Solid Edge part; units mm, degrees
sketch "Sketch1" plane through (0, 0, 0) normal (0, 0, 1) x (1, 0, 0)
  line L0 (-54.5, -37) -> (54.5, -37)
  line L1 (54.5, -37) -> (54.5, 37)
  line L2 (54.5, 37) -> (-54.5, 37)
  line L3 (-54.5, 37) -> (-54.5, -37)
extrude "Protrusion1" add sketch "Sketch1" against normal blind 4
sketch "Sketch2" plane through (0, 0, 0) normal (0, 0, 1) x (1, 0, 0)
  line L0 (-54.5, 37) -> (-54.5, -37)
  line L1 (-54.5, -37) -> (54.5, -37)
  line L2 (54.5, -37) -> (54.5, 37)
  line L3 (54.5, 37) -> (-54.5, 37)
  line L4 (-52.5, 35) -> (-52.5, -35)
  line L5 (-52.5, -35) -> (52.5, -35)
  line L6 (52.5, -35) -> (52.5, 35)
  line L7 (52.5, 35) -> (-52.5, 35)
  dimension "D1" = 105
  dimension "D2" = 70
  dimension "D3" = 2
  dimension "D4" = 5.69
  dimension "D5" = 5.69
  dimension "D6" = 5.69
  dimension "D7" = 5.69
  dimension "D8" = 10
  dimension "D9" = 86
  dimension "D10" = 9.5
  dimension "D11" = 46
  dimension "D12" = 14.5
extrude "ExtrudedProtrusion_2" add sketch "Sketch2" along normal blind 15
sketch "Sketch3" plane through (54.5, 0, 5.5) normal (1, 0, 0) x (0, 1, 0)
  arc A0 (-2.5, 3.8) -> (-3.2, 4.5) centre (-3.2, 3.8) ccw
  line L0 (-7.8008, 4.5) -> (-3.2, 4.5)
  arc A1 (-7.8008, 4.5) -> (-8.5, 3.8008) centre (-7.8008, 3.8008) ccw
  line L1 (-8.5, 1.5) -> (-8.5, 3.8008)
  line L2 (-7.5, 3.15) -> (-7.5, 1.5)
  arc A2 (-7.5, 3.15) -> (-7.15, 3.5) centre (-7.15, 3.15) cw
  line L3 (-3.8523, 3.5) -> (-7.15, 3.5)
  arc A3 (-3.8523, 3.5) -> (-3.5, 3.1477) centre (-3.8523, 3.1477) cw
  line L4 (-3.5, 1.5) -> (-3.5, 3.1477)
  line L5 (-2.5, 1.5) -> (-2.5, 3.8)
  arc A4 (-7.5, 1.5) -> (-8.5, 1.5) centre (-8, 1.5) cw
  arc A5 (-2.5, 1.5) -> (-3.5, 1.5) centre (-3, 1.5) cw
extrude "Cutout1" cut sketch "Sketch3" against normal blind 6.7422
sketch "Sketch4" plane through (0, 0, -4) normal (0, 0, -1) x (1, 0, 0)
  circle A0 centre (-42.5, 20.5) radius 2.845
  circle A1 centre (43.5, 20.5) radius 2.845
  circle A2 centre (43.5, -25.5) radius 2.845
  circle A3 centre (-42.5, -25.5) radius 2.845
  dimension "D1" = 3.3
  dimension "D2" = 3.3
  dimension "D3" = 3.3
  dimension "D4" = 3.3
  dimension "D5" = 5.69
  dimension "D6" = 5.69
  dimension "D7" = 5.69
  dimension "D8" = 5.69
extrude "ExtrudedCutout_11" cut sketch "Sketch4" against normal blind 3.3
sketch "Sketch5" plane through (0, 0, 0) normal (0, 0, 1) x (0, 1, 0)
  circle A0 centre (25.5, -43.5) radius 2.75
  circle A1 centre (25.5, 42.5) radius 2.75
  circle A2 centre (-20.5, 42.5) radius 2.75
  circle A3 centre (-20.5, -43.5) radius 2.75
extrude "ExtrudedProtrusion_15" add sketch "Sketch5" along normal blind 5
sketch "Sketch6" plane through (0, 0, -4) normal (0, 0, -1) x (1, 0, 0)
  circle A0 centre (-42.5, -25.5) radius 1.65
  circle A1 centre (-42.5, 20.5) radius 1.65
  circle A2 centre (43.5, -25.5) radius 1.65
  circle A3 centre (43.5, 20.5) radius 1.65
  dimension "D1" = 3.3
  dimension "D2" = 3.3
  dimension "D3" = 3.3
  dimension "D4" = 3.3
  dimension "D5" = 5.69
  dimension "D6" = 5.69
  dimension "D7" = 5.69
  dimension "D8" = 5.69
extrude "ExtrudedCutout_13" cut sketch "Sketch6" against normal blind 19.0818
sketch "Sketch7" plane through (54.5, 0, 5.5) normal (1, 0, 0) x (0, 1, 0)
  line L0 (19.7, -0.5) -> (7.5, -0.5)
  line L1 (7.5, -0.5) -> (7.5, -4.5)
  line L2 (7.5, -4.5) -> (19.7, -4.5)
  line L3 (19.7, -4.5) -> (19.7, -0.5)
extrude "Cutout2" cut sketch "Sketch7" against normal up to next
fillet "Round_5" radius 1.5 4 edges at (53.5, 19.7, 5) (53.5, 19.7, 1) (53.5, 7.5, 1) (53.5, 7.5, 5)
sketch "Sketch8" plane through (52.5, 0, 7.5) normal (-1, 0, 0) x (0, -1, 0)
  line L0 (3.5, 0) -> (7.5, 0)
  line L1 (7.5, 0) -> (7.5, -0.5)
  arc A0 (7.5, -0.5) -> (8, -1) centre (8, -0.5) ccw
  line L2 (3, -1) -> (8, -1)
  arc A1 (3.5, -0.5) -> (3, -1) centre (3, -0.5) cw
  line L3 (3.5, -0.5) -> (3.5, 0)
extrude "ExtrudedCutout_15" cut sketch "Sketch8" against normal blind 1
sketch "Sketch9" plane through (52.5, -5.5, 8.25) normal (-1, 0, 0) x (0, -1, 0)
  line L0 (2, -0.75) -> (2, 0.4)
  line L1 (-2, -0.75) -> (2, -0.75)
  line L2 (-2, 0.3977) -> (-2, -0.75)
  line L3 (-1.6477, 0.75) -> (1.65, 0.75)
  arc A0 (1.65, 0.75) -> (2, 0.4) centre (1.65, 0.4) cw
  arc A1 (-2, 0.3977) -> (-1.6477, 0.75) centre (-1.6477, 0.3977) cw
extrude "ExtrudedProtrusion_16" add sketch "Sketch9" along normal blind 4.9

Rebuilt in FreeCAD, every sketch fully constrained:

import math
import FreeCAD as App
import Part
import Sketcher
from FreeCAD import Vector


def edges_at(feature, points):
    """Names of the edges that pass closest to the given points."""
    edges = feature.Shape.Edges
    near = lambda p: min(range(len(edges)), key=lambda i: edges[i].distToShape(Part.Vertex(*p))[0])
    return sorted({f"Edge{near(p) + 1}" for p in points})

doc = App.newDocument("Part")
body = doc.addObject("PartDesign::Body", "Body")

# Sketch on XY plane
sketch1 = body.newObject("Sketcher::SketchObject", "Sketch")
sketch1.AttachmentSupport = (doc.getObject("XY_Plane"), [""])
sketch1.MapMode = "FlatFace"
sketch1.addGeometry([
    Part.LineSegment(Vector(-54.5, 37, 0), Vector(-54.5, -37, 0)),
    Part.LineSegment(Vector(-54.5, -37, 0), Vector(54.5, -37, 0)),
    Part.LineSegment(Vector(54.5, -37, 0), Vector(54.5, 37, 0)),
    Part.LineSegment(Vector(54.5, 37, 0), Vector(-54.5, 37, 0)),
], False)
sketch1.addConstraint([
    Sketcher.Constraint("Coincident", 0, 2, 1, 1),
    Sketcher.Constraint("Coincident", 1, 2, 2, 1),
    Sketcher.Constraint("Coincident", 2, 2, 3, 1),
    Sketcher.Constraint("Coincident", 3, 2, 0, 1),
    Sketcher.Constraint("Vertical", 0),
    Sketcher.Constraint("Horizontal", 1),
    Sketcher.Constraint("Vertical", 2),
    Sketcher.Constraint("Horizontal", 3),
    Sketcher.Constraint("Symmetric", 0, 2, 2, 2, -1, 1),
    Sketcher.Constraint("DistanceX", 1, 1, 1, 2, 109.0),
    Sketcher.Constraint("DistanceY", 0, 2, 0, 1, 74.0),
])
pad1 = body.newObject("PartDesign::Pad", "Pad")
pad1.Profile = sketch1
pad1.Length = 4
pad1.Reversed = True

# Sketch on XY plane
sketch2 = body.newObject("Sketcher::SketchObject", "Sketch001")
sketch2.AttachmentSupport = (doc.getObject("XY_Plane"), [""])
sketch2.MapMode = "FlatFace"
sketch2.addGeometry([
    Part.LineSegment(Vector(54.5, 37, 0), Vector(-54.5, 37, 0)),  # 0
    Part.LineSegment(Vector(-54.5, 37, 0), Vector(-54.5, -37, 0)),  # 1
    Part.LineSegment(Vector(-54.5, -37, 0), Vector(54.5, -37, 0)),  # 2
    Part.LineSegment(Vector(54.5, -37, 0), Vector(54.5, 37, 0)),  # 3
    Part.LineSegment(Vector(-52.5, -35, 0), Vector(-52.5, 35, 0)),  # 4
    Part.LineSegment(Vector(-52.5, 35, 0), Vector(52.5, 35, 0)),  # 5
    Part.LineSegment(Vector(52.5, 35, 0), Vector(52.5, -35, 0)),  # 6
    Part.LineSegment(Vector(52.5, -35, 0), Vector(-52.5, -35, 0)),  # 7
], False)
sketch2.addConstraint([
    Sketcher.Constraint("Coincident", 0, 2, 1, 1),
    Sketcher.Constraint("Coincident", 1, 2, 2, 1),
    Sketcher.Constraint("Coincident", 2, 2, 3, 1),
    Sketcher.Constraint("Coincident", 3, 2, 0, 1),
    Sketcher.Constraint("Coincident", 4, 2, 5, 1),
    Sketcher.Constraint("Coincident", 5, 2, 6, 1),
    Sketcher.Constraint("Coincident", 6, 2, 7, 1),
    Sketcher.Constraint("Coincident", 7, 2, 4, 1),
    Sketcher.Constraint("Horizontal", 0),
    Sketcher.Constraint("Vertical", 1),
    Sketcher.Constraint("Horizontal", 2),
    Sketcher.Constraint("Vertical", 3),
    Sketcher.Constraint("Vertical", 4),
    Sketcher.Constraint("Horizontal", 5),
    Sketcher.Constraint("Vertical", 6),
    Sketcher.Constraint("Horizontal", 7),
    Sketcher.Constraint("Symmetric", 0, 2, 2, 2, -1, 1),
    Sketcher.Constraint("Symmetric", 4, 2, 6, 2, -1, 1),
    Sketcher.Constraint("DistanceX", 0, 2, 0, 1, 109.0),
    Sketcher.Constraint("DistanceX", 5, 1, 5, 2, 105.0),
    Sketcher.Constraint("DistanceY", 1, 2, 1, 1, 74.0),
    Sketcher.Constraint("DistanceY", 4, 1, 4, 2, 70.0),
])
pad2 = body.newObject("PartDesign::Pad", "Pad001")
pad2.Profile = sketch2
pad2.Length = 15

# Sketch on YZ plane
sketch3 = body.newObject("Sketcher::SketchObject", "Sketch002")
sketch3.AttachmentSupport = (doc.getObject("YZ_Plane"), [""])
sketch3.MapMode = "FlatFace"
sketch3.AttachmentOffset = App.Placement(Vector(0, 0, 54.5), App.Rotation())
sketch3.addGeometry([
    Part.LineSegment(Vector(-2.5, 7, 0), Vector(-2.5, 9.3, 0)),  # 0
    Part.ArcOfCircle(Part.Circle(Vector(-3.2, 9.3, 0), Vector(0, 0, 1), 0.7), math.radians(0), math.radians(90)),  # 1
    Part.LineSegment(Vector(-3.2, 10, 0), Vector(-7.8008, 10, 0)),  # 2
    Part.ArcOfCircle(Part.Circle(Vector(-7.8008, 9.3008, 0), Vector(0, 0, 1), 0.6992), math.radians(90), math.radians(180)),  # 3
    Part.LineSegment(Vector(-8.5, 9.3008, 0), Vector(-8.5, 7, 0)),  # 4
    Part.ArcOfCircle(Part.Circle(Vector(-8, 7, 0), Vector(0, 0, 1), 0.5), math.radians(180), math.radians(360)),  # 5
    Part.LineSegment(Vector(-7.5, 7, 0), Vector(-7.5, 8.65, 0)),  # 6
    Part.ArcOfCircle(Part.Circle(Vector(-7.15, 8.65, 0), Vector(0, 0, 1), 0.35), math.radians(90), math.radians(180)),  # 7
    Part.LineSegment(Vector(-7.15, 9, 0), Vector(-3.8523, 9, 0)),  # 8
    Part.ArcOfCircle(Part.Circle(Vector(-3.8523, 8.6477, 0), Vector(0, 0, 1), 0.3523), math.radians(0), math.radians(90)),  # 9
    Part.LineSegment(Vector(-3.5, 8.6477, 0), Vector(-3.5, 7, 0)),  # 10
    Part.ArcOfCircle(Part.Circle(Vector(-3, 7, 0), Vector(0, 0, 1), 0.5), math.radians(180), math.radians(360)),  # 11
], False)
sketch3.addConstraint([
    Sketcher.Constraint("Tangent", 0, 2, 1, 1),
    Sketcher.Constraint("Tangent", 1, 2, 2, 1),
    Sketcher.Constraint("Tangent", 2, 2, 3, 1),
    Sketcher.Constraint("Tangent", 3, 2, 4, 1),
    Sketcher.Constraint("Tangent", 4, 2, 5, 1),
    Sketcher.Constraint("Tangent", 5, 2, 6, 1),
    Sketcher.Constraint("Tangent", 6, 2, 7, 2),
    Sketcher.Constraint("Tangent", 7, 1, 8, 1),
    Sketcher.Constraint("Tangent", 8, 2, 9, 2),
    Sketcher.Constraint("Tangent", 9, 1, 10, 1),
    Sketcher.Constraint("Tangent", 10, 2, 11, 1),
    Sketcher.Constraint("Tangent", 11, 2, 0, 1),
    Sketcher.Constraint("Vertical", 0),
    Sketcher.Constraint("Horizontal", 2),
    Sketcher.Constraint("Vertical", 4),
    Sketcher.Constraint("Vertical", 6),
    Sketcher.Constraint("Horizontal", 8),
    Sketcher.Constraint("Vertical", 10),
    Sketcher.Constraint("Equal", 5, 11),
    Sketcher.Constraint("Horizontal", 5, 3, 11, 3),
    Sketcher.Constraint("Radius", 1, 0.7),
    Sketcher.Constraint("Radius", 5, 0.5),
    Sketcher.Constraint("Radius", 7, 0.35),
    Sketcher.Constraint("DistanceY", 0, 1, 0, 2, 2.3),
    Sketcher.Constraint("DistanceX", 5, 3, -1, 1, 8.0),
    Sketcher.Constraint("DistanceY", -1, 1, 5, 3, 7.0),
    Sketcher.Constraint("DistanceX", 11, 3, -1, 1, 3.0),
    Sketcher.Constraint("DistanceY", -1, 1, 7, 1, 9.0),
    Sketcher.Constraint("Radius", 3, 0.6992),
    Sketcher.Constraint("Radius", 9, 0.3523),
])
pocket1 = body.newObject("PartDesign::Pocket", "Pocket")
pocket1.Profile = sketch3
pocket1.Length = 6.7422

# Sketch on XY plane
sketch4 = body.newObject("Sketcher::SketchObject", "Sketch003")
sketch4.AttachmentSupport = (doc.getObject("XY_Plane"), [""])
sketch4.MapMode = "FlatFace"
sketch4.AttachmentOffset = App.Placement(Vector(0, 0, -4), App.Rotation())
sketch4.addGeometry([
    Part.Circle(Vector(-42.5, -20.5, 0), Vector(0, 0, 1), 2.845),
    Part.Circle(Vector(43.5, -20.5, 0), Vector(0, 0, 1), 2.845),
    Part.Circle(Vector(43.5, 25.5, 0), Vector(0, 0, 1), 2.845),
    Part.Circle(Vector(-42.5, 25.5, 0), Vector(0, 0, 1), 2.845),
], False)
sketch4.addConstraint([
    Sketcher.Constraint("Equal", 0, 1),
    Sketcher.Constraint("Equal", 1, 2),
    Sketcher.Constraint("Equal", 2, 3),
    Sketcher.Constraint("Horizontal", 0, 3, 1, 3),
    Sketcher.Constraint("Horizontal", 2, 3, 3, 3),
    Sketcher.Constraint("Vertical", 1, 3, 2, 3),
    Sketcher.Constraint("Vertical", 0, 3, 3, 3),
    Sketcher.Constraint("Diameter", 0, 5.69),
    Sketcher.Constraint("DistanceX", 0, 3, 1, 3, 86.0),
    Sketcher.Constraint("DistanceY", 1, 3, 2, 3, 46.0),
    Sketcher.Constraint("DistanceX", 0, 3, -1, 1, 42.5),
    Sketcher.Constraint("DistanceY", 0, 3, -1, 1, 20.5),
])
pocket2 = body.newObject("PartDesign::Pocket", "Pocket001")
pocket2.Profile = sketch4
pocket2.Length = 3.3
pocket2.Reversed = True

# Sketch on XY plane
sketch5 = body.newObject("Sketcher::SketchObject", "Sketch004")
sketch5.AttachmentSupport = (doc.getObject("XY_Plane"), [""])
sketch5.MapMode = "FlatFace"
sketch5.addGeometry([
    Part.Circle(Vector(43.5, 25.5, 0), Vector(0, 0, 1), 2.75),
    Part.Circle(Vector(-42.5, 25.5, 0), Vector(0, 0, 1), 2.75),
    Part.Circle(Vector(-42.5, -20.5, 0), Vector(0, 0, 1), 2.75),
    Part.Circle(Vector(43.5, -20.5, 0), Vector(0, 0, 1), 2.75),
], False)
sketch5.addConstraint([
    Sketcher.Constraint("Equal", 0, 1),
    Sketcher.Constraint("Equal", 1, 2),
    Sketcher.Constraint("Equal", 2, 3),
    Sketcher.Constraint("Horizontal", 0, 3, 1, 3),
    Sketcher.Constraint("Horizontal", 2, 3, 3, 3),
    Sketcher.Constraint("Vertical", 1, 3, 2, 3),
    Sketcher.Constraint("Vertical", 0, 3, 3, 3),
    Sketcher.Constraint("Diameter", 0, 5.5),
    Sketcher.Constraint("DistanceX", 1, 3, 0, 3, 86.0),
    Sketcher.Constraint("DistanceY", 2, 3, 1, 3, 46.0),
    Sketcher.Constraint("DistanceX", -1, 1, 0, 3, 43.5),
    Sketcher.Constraint("DistanceY", -1, 1, 0, 3, 25.5),
])
pad3 = body.newObject("PartDesign::Pad", "Pad002")
pad3.Profile = sketch5
pad3.Length = 5

# Sketch on XY plane
sketch6 = body.newObject("Sketcher::SketchObject", "Sketch005")
sketch6.AttachmentSupport = (doc.getObject("XY_Plane"), [""])
sketch6.MapMode = "FlatFace"
sketch6.AttachmentOffset = App.Placement(Vector(0, 0, -4), App.Rotation())
sketch6.addGeometry([
    Part.Circle(Vector(-42.5, 25.5, 0), Vector(0, 0, 1), 1.65),
    Part.Circle(Vector(-42.5, -20.5, 0), Vector(0, 0, 1), 1.65),
    Part.Circle(Vector(43.5, 25.5, 0), Vector(0, 0, 1), 1.65),
    Part.Circle(Vector(43.5, -20.5, 0), Vector(0, 0, 1), 1.65),
], False)
sketch6.addConstraint([
    Sketcher.Constraint("Equal", 0, 1),
    Sketcher.Constraint("Equal", 1, 2),
    Sketcher.Constraint("Equal", 2, 3),
    Sketcher.Constraint("Horizontal", 0, 3, 2, 3),
    Sketcher.Constraint("Horizontal", 1, 3, 3, 3),
    Sketcher.Constraint("Vertical", 0, 3, 1, 3),
    Sketcher.Constraint("Vertical", 2, 3, 3, 3),
    Sketcher.Constraint("Diameter", 0, 3.3),
    Sketcher.Constraint("DistanceY", 1, 3, 0, 3, 46.0),
    Sketcher.Constraint("DistanceX", 0, 3, 2, 3, 86.0),
    Sketcher.Constraint("DistanceX", 0, 3, -1, 1, 42.5),
    Sketcher.Constraint("DistanceY", -1, 1, 0, 3, 25.5),
])
pocket3 = body.newObject("PartDesign::Pocket", "Pocket002")
pocket3.Profile = sketch6
pocket3.Length = 19.0818
pocket3.Reversed = True

# Sketch on YZ plane
sketch7 = body.newObject("Sketcher::SketchObject", "Sketch006")
sketch7.AttachmentSupport = (doc.getObject("YZ_Plane"), [""])
sketch7.MapMode = "FlatFace"
sketch7.AttachmentOffset = App.Placement(Vector(0, 0, 54.5), App.Rotation())
sketch7.addGeometry([
    Part.LineSegment(Vector(19.7, 1, 0), Vector(19.7, 5, 0)),
    Part.LineSegment(Vector(19.7, 5, 0), Vector(7.5, 5, 0)),
    Part.LineSegment(Vector(7.5, 5, 0), Vector(7.5, 1, 0)),
    Part.LineSegment(Vector(7.5, 1, 0), Vector(19.7, 1, 0)),
], False)
sketch7.addConstraint([
    Sketcher.Constraint("Coincident", 0, 2, 1, 1),
    Sketcher.Constraint("Coincident", 1, 2, 2, 1),
    Sketcher.Constraint("Coincident", 2, 2, 3, 1),
    Sketcher.Constraint("Coincident", 3, 2, 0, 1),
    Sketcher.Constraint("Vertical", 0),
    Sketcher.Constraint("Horizontal", 1),
    Sketcher.Constraint("Vertical", 2),
    Sketcher.Constraint("Horizontal", 3),
    Sketcher.Constraint("DistanceY", 0, 1, 0, 2, 4.0),
    Sketcher.Constraint("DistanceX", 1, 2, 1, 1, 12.2),
    Sketcher.Constraint("DistanceY", -1, 1, 0, 2, 5.0),
    Sketcher.Constraint("DistanceX", -1, 1, 0, 2, 19.7),
])
pocket4 = body.newObject("PartDesign::Pocket", "Pocket003")
pocket4.Profile = sketch7
pocket4.Type = "UpToFirst"
doc.recompute()

fillet = body.newObject("PartDesign::Fillet", "Fillet")
fillet.Base = (pocket4, edges_at(pocket4, [
    (53.5, 19.7, 5),
    (53.5, 19.7, 1),
    (53.5, 7.5, 1),
    (53.5, 7.5, 5),
]))
fillet.Radius = 1.5

# Sketch on YZ plane
sketch8 = body.newObject("Sketcher::SketchObject", "Sketch007")
sketch8.AttachmentSupport = (doc.getObject("YZ_Plane"), [""])
sketch8.MapMode = "FlatFace"
sketch8.AttachmentOffset = App.Placement(Vector(0, 0, 52.5), App.Rotation())
sketch8.addGeometry([
    Part.LineSegment(Vector(-7.5, 7.5, 0), Vector(-3.5, 7.5, 0)),  # 0
    Part.LineSegment(Vector(-3.5, 7.5, 0), Vector(-3.5, 7, 0)),  # 1
    Part.ArcOfCircle(Part.Circle(Vector(-3, 7, 0), Vector(0, 0, 1), 0.5), math.radians(180), math.radians(270)),  # 2
    Part.LineSegment(Vector(-3, 6.5, 0), Vector(-8, 6.5, 0)),  # 3
    Part.ArcOfCircle(Part.Circle(Vector(-8, 7, 0), Vector(0, 0, 1), 0.5), math.radians(-90), math.radians(0)),  # 4
    Part.LineSegment(Vector(-7.5, 7, 0), Vector(-7.5, 7.5, 0)),  # 5
], False)
sketch8.addConstraint([
    Sketcher.Constraint("Coincident", 0, 2, 1, 1),
    Sketcher.Constraint("Tangent", 1, 2, 2, 1),
    Sketcher.Constraint("Tangent", 2, 2, 3, 1),
    Sketcher.Constraint("Tangent", 3, 2, 4, 1),
    Sketcher.Constraint("Tangent", 4, 2, 5, 1),
    Sketcher.Constraint("Coincident", 5, 2, 0, 1),
    Sketcher.Constraint("Horizontal", 0),
    Sketcher.Constraint("Vertical", 1),
    Sketcher.Constraint("Horizontal", 3),
    Sketcher.Constraint("Vertical", 5),
    Sketcher.Constraint("Equal", 2, 4),
    Sketcher.Constraint("Radius", 2, 0.5),
    Sketcher.Constraint("DistanceX", 0, 1, 0, 2, 4.0),
    Sketcher.Constraint("DistanceY", 1, 2, 1, 1, 0.5),
    Sketcher.Constraint("DistanceX", 2, 3, -1, 1, 3.0),
    Sketcher.Constraint("DistanceY", -1, 1, 2, 3, 7.0),
])
pocket5 = body.newObject("PartDesign::Pocket", "Pocket004")
pocket5.Profile = sketch8
pocket5.Length = 1
pocket5.Reversed = True

# Sketch on YZ plane
sketch9 = body.newObject("Sketcher::SketchObject", "Sketch008")
sketch9.AttachmentSupport = (doc.getObject("YZ_Plane"), [""])
sketch9.MapMode = "FlatFace"
sketch9.AttachmentOffset = App.Placement(Vector(0, 0, 52.5), App.Rotation())
sketch9.addGeometry([
    Part.LineSegment(Vector(-3.5, 7.5, 0), Vector(-7.5, 7.5, 0)),  # 0
    Part.LineSegment(Vector(-7.5, 7.5, 0), Vector(-7.5, 8.65, 0)),  # 1
    Part.ArcOfCircle(Part.Circle(Vector(-7.15, 8.65, 0), Vector(0, 0, 1), 0.35), math.radians(90), math.radians(180)),  # 2
    Part.LineSegment(Vector(-7.15, 9, 0), Vector(-3.8523, 9, 0)),  # 3
    Part.ArcOfCircle(Part.Circle(Vector(-3.8523, 8.6477, 0), Vector(0, 0, 1), 0.3523), math.radians(0), math.radians(90)),  # 4
    Part.LineSegment(Vector(-3.5, 8.6477, 0), Vector(-3.5, 7.5, 0)),  # 5
], False)
sketch9.addConstraint([
    Sketcher.Constraint("Coincident", 0, 2, 1, 1),
    Sketcher.Constraint("Tangent", 1, 2, 2, 2),
    Sketcher.Constraint("Tangent", 2, 1, 3, 1),
    Sketcher.Constraint("Tangent", 3, 2, 4, 2),
    Sketcher.Constraint("Tangent", 4, 1, 5, 1),
    Sketcher.Constraint("Coincident", 5, 2, 0, 1),
    Sketcher.Constraint("Horizontal", 0),
    Sketcher.Constraint("Vertical", 1),
    Sketcher.Constraint("Horizontal", 3),
    Sketcher.Constraint("Vertical", 5),
    Sketcher.Constraint("DistanceX", 0, 2, 0, 1, 4.0),
    Sketcher.Constraint("Radius", 2, 0.35),
    Sketcher.Constraint("DistanceY", -1, 1, 2, 1, 9.0),
    Sketcher.Constraint("DistanceY", 1, 1, 1, 2, 1.15),
    Sketcher.Constraint("DistanceX", 0, 2, -1, 1, 7.5),
    Sketcher.Constraint("Radius", 4, 0.3523),
])
pad4 = body.newObject("PartDesign::Pad", "Pad003")
pad4.Profile = sketch9
pad4.Length = 4.9
pad4.Reversed = True

doc.recompute()
